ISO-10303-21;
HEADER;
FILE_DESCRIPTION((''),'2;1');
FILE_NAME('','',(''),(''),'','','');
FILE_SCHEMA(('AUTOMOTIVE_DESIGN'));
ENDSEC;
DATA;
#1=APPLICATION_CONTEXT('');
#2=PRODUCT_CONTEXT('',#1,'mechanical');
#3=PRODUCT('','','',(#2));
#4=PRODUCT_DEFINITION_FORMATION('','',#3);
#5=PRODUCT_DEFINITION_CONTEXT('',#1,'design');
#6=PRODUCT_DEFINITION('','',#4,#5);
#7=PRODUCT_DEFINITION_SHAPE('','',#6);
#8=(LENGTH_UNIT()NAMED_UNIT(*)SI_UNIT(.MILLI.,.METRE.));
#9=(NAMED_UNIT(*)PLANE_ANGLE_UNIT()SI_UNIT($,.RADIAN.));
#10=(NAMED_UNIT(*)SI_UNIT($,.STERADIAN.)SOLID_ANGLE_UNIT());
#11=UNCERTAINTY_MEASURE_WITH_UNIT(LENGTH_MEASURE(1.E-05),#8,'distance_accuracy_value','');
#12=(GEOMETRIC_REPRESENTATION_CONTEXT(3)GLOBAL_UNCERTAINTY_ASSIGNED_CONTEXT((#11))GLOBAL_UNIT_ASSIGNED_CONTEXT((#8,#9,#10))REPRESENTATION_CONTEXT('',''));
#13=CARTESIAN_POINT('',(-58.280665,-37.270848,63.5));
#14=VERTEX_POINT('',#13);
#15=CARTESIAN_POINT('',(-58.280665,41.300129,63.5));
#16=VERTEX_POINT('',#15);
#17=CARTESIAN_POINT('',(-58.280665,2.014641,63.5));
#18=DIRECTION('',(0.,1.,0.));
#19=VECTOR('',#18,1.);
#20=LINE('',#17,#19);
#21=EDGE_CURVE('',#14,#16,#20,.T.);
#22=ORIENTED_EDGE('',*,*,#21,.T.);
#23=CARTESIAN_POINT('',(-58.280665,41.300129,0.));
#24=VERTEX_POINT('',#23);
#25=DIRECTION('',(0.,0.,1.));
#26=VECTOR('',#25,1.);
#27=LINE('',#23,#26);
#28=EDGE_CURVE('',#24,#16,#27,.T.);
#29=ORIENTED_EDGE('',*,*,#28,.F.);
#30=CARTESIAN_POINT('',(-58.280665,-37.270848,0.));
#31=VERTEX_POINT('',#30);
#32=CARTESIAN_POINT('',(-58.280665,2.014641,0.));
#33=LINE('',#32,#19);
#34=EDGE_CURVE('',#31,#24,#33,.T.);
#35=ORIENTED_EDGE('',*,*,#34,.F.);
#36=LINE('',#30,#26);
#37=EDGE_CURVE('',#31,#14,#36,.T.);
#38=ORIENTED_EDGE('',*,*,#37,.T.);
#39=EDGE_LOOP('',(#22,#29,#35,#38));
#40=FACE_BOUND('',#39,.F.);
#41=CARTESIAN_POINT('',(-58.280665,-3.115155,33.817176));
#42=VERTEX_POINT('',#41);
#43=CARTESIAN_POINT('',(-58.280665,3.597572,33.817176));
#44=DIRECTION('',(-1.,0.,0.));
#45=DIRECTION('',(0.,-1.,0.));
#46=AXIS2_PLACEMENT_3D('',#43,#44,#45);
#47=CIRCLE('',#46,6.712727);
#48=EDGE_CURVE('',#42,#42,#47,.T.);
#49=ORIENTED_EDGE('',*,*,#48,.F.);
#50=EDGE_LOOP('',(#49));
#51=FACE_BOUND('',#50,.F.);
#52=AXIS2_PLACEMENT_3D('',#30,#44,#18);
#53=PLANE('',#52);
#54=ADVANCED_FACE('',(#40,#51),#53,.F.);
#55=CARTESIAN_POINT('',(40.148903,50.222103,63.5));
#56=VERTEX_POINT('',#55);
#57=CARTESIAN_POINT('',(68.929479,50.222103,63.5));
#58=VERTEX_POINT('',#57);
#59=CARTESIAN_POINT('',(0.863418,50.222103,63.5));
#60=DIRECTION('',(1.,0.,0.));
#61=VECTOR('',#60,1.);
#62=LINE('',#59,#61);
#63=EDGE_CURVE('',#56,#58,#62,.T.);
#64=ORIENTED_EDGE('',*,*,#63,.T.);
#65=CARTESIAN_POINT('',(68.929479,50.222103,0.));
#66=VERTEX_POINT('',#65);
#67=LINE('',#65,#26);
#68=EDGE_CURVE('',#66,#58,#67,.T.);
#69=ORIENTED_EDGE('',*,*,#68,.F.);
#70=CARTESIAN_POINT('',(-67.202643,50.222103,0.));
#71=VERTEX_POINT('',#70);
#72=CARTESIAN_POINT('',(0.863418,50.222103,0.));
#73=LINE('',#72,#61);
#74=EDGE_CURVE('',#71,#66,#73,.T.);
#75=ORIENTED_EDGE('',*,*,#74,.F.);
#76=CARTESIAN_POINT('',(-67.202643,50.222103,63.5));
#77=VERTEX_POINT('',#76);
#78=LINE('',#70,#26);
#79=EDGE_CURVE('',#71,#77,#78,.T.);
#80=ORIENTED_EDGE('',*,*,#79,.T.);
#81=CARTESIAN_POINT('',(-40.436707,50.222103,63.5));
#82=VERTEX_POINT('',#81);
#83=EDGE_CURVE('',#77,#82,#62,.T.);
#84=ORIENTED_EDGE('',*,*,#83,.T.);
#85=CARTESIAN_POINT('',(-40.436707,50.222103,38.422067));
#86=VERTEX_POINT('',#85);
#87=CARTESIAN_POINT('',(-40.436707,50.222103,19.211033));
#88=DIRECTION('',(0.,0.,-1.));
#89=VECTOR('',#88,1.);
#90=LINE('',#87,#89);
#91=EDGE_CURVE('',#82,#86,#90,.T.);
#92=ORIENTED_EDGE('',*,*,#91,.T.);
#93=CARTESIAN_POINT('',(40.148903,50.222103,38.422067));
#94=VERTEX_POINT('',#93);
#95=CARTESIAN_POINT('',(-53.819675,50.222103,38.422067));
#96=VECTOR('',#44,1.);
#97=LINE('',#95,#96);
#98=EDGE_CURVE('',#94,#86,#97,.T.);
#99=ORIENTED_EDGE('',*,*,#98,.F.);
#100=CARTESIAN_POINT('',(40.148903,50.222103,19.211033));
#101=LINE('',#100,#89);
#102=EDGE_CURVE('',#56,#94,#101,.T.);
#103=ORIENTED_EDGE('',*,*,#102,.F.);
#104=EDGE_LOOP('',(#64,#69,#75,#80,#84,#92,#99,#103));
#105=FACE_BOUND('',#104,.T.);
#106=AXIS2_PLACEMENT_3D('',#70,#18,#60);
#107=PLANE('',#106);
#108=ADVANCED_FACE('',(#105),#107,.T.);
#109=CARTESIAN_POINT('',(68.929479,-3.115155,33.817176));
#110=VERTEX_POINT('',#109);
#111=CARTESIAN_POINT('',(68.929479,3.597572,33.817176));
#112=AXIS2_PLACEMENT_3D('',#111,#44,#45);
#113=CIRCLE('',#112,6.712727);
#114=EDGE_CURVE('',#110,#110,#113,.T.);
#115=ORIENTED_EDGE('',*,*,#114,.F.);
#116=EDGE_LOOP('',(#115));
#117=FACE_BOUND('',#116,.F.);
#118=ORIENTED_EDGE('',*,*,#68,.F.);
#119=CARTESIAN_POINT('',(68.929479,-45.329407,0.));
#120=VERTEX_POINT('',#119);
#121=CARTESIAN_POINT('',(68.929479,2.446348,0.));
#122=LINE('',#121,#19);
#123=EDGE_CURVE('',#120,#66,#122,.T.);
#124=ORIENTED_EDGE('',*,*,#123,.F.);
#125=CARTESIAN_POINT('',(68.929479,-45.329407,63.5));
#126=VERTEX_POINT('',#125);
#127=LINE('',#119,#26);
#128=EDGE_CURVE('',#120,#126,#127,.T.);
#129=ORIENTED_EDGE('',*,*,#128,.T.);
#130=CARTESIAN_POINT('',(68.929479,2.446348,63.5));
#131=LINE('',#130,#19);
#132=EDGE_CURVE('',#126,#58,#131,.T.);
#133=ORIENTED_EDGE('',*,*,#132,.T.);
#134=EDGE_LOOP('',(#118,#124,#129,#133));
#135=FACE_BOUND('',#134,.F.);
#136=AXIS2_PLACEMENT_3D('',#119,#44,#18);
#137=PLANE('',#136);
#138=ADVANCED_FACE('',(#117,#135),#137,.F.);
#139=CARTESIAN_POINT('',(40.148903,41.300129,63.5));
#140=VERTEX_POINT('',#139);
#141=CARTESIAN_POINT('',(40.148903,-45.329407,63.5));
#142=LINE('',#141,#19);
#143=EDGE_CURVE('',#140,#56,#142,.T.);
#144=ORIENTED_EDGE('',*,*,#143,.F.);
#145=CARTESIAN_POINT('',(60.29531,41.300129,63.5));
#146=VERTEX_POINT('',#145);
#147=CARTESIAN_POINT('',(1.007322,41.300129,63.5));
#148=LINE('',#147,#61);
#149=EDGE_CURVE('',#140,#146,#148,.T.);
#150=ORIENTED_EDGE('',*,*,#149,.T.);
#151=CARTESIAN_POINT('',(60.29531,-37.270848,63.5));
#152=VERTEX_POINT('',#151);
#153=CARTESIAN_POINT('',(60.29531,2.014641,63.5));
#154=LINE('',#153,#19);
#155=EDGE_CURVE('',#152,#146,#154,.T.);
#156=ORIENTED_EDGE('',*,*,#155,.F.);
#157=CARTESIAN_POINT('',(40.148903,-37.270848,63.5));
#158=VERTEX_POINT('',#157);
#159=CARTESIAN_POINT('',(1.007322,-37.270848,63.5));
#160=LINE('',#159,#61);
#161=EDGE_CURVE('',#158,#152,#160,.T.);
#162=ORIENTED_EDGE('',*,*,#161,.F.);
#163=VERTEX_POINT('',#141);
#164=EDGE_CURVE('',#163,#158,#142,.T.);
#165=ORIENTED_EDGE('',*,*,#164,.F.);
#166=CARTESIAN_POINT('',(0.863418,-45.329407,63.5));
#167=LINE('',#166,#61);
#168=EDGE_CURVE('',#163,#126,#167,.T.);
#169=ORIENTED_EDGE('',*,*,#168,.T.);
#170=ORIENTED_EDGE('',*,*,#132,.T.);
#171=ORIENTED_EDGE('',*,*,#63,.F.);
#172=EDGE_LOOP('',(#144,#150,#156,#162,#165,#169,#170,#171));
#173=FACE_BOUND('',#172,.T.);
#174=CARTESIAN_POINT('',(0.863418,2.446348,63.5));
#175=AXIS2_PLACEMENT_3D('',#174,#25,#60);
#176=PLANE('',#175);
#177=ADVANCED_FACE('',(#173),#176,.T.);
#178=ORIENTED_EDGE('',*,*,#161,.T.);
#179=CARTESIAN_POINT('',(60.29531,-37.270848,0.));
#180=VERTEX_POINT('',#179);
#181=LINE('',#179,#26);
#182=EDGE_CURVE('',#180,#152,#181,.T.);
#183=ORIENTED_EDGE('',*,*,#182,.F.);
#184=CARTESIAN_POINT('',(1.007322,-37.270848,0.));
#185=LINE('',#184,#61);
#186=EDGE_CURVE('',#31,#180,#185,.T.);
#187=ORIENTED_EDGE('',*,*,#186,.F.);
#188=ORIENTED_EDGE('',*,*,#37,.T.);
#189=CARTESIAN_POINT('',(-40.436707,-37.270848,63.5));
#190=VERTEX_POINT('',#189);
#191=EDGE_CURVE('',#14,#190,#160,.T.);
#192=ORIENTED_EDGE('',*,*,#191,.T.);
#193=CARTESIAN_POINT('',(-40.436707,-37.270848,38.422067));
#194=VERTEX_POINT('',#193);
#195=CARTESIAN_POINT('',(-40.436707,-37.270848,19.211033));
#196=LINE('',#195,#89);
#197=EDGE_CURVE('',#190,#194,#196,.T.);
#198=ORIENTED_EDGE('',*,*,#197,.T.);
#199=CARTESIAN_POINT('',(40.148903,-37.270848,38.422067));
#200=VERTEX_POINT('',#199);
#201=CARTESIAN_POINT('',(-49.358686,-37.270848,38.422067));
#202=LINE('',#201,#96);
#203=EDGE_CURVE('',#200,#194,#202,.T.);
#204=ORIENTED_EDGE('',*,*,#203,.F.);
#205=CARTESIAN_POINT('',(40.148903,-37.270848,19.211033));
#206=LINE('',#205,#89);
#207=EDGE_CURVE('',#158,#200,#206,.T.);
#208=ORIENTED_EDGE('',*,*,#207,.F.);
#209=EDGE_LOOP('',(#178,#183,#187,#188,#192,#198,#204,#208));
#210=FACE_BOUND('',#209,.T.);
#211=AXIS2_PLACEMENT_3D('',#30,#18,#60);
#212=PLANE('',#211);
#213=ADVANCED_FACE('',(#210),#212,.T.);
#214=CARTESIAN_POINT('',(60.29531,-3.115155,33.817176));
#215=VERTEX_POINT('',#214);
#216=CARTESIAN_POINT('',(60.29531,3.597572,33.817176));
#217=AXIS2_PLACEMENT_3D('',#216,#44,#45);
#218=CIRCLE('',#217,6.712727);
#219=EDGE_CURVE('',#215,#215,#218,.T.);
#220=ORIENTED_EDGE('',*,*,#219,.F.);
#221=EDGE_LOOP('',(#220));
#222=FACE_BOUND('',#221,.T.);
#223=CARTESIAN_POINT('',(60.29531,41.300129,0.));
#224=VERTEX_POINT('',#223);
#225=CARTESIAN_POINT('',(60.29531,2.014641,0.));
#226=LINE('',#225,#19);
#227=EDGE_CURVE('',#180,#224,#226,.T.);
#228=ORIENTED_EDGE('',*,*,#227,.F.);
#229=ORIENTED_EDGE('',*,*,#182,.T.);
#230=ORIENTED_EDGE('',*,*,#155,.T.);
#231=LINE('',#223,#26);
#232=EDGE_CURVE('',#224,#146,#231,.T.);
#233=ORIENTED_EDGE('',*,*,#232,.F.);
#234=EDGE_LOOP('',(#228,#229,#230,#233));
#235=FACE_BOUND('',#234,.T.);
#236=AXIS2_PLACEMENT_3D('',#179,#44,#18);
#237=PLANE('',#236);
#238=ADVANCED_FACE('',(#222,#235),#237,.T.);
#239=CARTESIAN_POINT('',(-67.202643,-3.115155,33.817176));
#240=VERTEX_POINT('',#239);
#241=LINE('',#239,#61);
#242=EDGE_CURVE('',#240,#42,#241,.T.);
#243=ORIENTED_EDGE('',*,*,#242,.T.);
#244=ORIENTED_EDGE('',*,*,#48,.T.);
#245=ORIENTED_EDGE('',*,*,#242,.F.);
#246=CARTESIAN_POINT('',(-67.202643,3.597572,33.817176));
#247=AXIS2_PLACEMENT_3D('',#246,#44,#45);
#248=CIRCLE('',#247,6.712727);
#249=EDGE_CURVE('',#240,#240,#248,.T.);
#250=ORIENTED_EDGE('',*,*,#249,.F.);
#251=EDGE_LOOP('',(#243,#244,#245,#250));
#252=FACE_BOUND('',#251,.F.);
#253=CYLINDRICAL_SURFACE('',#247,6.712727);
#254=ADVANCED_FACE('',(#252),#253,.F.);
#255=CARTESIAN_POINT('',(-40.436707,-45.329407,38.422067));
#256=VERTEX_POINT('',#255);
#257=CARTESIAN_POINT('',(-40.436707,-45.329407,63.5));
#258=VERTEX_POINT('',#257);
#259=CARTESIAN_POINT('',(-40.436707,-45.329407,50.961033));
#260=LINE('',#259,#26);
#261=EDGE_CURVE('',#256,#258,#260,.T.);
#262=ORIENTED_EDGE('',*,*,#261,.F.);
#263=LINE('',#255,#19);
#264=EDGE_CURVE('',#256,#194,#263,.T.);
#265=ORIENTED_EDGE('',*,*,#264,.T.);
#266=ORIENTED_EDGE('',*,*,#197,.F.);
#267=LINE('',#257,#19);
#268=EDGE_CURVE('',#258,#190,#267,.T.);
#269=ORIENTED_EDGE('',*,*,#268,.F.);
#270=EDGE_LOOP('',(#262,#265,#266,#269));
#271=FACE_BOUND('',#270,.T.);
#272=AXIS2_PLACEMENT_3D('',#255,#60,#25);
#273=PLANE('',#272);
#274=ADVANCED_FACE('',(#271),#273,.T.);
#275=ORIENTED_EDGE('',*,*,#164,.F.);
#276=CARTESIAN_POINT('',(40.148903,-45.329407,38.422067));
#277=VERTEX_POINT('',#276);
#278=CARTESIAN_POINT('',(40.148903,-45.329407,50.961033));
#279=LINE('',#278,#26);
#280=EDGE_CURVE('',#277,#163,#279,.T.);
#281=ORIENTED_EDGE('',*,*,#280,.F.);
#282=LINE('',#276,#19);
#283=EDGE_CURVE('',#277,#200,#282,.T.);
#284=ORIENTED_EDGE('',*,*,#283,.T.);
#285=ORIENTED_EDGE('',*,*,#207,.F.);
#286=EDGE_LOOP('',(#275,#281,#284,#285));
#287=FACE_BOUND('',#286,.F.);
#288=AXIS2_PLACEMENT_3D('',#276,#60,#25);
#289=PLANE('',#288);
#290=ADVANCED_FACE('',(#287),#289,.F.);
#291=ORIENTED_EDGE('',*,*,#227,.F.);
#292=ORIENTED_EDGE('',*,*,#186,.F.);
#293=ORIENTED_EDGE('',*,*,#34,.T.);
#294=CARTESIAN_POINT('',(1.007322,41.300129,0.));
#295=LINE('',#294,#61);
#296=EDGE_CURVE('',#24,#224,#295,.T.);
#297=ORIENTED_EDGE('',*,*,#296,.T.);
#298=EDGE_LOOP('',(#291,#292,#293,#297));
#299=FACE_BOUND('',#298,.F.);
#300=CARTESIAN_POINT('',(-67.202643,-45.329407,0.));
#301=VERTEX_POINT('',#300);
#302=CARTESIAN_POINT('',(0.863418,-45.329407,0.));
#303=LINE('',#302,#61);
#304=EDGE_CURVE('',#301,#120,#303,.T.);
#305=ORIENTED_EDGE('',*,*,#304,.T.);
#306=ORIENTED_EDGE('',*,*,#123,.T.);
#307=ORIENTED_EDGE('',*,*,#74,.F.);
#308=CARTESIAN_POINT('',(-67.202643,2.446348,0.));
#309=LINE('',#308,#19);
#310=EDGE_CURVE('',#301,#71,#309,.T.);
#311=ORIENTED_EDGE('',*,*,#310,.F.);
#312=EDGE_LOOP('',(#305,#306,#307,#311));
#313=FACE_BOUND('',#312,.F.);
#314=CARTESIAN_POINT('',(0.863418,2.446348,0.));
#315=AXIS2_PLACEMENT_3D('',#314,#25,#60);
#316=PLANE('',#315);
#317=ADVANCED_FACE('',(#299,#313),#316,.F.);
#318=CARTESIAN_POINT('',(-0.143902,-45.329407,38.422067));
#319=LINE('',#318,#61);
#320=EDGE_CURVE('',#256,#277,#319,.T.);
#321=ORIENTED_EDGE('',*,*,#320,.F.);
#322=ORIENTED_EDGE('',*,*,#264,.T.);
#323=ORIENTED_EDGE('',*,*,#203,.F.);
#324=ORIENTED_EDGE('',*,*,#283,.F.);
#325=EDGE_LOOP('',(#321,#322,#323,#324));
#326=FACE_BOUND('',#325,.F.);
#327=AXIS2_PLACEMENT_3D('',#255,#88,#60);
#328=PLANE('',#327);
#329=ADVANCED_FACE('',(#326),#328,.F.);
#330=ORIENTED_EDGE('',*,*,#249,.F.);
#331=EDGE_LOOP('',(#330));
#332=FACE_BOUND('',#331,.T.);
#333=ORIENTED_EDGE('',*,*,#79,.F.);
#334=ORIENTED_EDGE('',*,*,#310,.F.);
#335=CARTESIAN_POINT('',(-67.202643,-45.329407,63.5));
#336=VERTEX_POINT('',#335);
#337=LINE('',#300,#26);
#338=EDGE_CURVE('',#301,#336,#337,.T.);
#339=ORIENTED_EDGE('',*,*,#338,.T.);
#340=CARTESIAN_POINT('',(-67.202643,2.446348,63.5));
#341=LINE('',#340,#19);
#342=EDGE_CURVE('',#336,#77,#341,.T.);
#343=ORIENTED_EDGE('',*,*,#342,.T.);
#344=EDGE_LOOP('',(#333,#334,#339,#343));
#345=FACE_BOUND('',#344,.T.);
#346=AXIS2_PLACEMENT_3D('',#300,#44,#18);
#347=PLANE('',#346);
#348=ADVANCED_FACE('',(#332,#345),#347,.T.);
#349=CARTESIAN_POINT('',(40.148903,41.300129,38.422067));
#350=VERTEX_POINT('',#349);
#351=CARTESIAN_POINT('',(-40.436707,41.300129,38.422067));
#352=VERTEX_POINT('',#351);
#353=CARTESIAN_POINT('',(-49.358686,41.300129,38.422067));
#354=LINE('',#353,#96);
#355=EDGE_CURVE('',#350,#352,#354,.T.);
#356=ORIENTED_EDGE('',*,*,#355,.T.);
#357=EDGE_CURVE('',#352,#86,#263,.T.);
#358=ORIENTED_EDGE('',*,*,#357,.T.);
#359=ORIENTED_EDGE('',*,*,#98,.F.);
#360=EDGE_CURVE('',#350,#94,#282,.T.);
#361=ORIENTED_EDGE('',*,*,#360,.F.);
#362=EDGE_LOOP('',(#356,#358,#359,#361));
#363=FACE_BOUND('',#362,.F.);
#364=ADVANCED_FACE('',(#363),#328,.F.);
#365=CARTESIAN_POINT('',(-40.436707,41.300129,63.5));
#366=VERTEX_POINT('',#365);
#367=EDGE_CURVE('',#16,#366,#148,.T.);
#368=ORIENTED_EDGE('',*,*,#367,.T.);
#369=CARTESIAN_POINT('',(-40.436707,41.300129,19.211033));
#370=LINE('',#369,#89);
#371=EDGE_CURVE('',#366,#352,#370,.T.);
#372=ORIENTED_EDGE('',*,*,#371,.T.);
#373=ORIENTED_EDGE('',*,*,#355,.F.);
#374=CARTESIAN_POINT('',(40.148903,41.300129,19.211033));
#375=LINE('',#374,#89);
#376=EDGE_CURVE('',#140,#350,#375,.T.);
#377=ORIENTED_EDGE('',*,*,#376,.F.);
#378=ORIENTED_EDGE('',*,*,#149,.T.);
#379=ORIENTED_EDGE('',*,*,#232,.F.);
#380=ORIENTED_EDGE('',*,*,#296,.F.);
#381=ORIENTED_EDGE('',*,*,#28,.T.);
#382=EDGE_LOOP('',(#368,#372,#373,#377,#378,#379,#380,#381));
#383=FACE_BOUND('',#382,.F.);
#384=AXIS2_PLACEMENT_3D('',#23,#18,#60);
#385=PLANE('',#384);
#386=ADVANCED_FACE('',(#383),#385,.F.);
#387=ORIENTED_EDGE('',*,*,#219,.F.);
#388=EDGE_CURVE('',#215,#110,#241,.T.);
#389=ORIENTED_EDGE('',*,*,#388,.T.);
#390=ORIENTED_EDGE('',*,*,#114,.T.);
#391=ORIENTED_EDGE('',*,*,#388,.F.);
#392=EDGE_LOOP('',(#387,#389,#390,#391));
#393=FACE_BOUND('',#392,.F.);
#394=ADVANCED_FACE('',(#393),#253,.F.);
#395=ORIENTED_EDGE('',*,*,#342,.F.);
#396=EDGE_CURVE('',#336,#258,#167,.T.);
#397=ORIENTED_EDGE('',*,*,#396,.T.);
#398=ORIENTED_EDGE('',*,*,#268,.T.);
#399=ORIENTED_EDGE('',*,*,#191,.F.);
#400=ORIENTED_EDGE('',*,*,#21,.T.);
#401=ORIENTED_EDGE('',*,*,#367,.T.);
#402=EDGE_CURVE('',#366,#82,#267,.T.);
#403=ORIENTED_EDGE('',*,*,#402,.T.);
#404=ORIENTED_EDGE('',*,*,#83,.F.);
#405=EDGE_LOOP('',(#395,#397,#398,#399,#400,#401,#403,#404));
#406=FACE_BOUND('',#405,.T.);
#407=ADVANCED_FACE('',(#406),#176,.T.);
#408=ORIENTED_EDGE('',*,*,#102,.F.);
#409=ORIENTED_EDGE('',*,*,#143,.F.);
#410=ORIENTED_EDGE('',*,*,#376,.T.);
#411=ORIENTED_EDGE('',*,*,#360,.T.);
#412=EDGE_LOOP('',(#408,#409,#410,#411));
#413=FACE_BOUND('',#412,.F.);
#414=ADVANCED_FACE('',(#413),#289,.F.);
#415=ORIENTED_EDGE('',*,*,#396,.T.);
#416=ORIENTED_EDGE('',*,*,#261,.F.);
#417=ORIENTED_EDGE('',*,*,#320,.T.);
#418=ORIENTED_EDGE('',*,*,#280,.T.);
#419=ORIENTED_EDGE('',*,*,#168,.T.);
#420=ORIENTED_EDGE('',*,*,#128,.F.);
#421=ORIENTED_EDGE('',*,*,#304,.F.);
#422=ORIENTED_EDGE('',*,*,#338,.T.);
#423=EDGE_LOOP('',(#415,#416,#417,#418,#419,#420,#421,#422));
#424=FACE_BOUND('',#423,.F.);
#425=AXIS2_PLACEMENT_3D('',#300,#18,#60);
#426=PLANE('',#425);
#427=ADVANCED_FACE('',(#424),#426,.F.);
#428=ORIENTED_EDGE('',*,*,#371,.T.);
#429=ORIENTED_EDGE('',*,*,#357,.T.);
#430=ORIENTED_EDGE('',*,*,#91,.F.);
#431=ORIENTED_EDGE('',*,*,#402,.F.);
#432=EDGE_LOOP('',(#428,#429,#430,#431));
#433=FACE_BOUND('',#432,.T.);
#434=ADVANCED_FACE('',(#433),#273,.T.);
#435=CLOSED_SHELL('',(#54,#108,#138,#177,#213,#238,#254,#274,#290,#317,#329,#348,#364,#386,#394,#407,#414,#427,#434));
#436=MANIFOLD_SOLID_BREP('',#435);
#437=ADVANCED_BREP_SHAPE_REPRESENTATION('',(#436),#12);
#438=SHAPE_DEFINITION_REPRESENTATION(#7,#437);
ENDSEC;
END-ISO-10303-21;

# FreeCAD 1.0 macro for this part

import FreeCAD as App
import Part
import Sketcher
from FreeCAD import Vector
Q = App.Units.Quantity

doc = App.newDocument("Part")
body = doc.addObject("PartDesign::Body", "Body")

# Sketch on XY plane
sketch1 = doc.addObject("Sketcher::SketchObject", "Sketch")
body.addObject(sketch1)
sketch1.AttachmentSupport = (doc.XY_Plane, [""])
sketch1.MapMode = "FlatFace"
sketch1.addGeometry([
    Part.LineSegment(Vector(-67.202643, 50.222103, 0), Vector(-67.202643, -45.329407, 0)),  # 0
    Part.LineSegment(Vector(-67.202643, -45.329407, 0), Vector(68.929479, -45.329407, 0)),  # 1
    Part.LineSegment(Vector(68.929479, -45.329407, 0), Vector(68.929479, 50.222103, 0)),  # 2
    Part.LineSegment(Vector(68.929479, 50.222103, 0), Vector(-67.202643, 50.222103, 0)),  # 3
    Part.LineSegment(Vector(60.29531, -37.270848, 0), Vector(-58.280665, -37.270848, 0)),  # 4
    Part.LineSegment(Vector(-58.280665, -37.270848, 0), Vector(-58.280665, 41.300129, 0)),  # 5
    Part.LineSegment(Vector(-58.280665, 41.300129, 0), Vector(60.29531, 41.300129, 0)),  # 6
    Part.LineSegment(Vector(60.29531, 41.300129, 0), Vector(60.29531, -37.270848, 0)),  # 7
], False)
sketch1.addConstraint([
    Sketcher.Constraint("Coincident", 0, 2, 1, 1),
    Sketcher.Constraint("Coincident", 1, 2, 2, 1),
    Sketcher.Constraint("Coincident", 2, 2, 3, 1),
    Sketcher.Constraint("Coincident", 3, 2, 0, 1),
    Sketcher.Constraint("Coincident", 4, 2, 5, 1),
    Sketcher.Constraint("Coincident", 5, 2, 6, 1),
    Sketcher.Constraint("Coincident", 6, 2, 7, 1),
    Sketcher.Constraint("Coincident", 7, 2, 4, 1),
    Sketcher.Constraint("Vertical", 0),
    Sketcher.Constraint("Horizontal", 1),
    Sketcher.Constraint("Vertical", 2),
    Sketcher.Constraint("Horizontal", 3),
    Sketcher.Constraint("Horizontal", 4),
    Sketcher.Constraint("Vertical", 5),
    Sketcher.Constraint("Horizontal", 6),
    Sketcher.Constraint("Vertical", 7),
    Sketcher.Constraint("DistanceX", 1, 1, 1, 2, 136.132121),
    Sketcher.Constraint("DistanceY", 0, 2, 0, 1, 95.551509),
    Sketcher.Constraint("DistanceX", 4, 2, 4, 1, 118.575975),
    Sketcher.Constraint("DistanceY", 5, 1, 5, 2, 78.570977),
    Sketcher.Constraint("DistanceX", -1, 1, 1, 2, 68.929479),
    Sketcher.Constraint("DistanceY", -1, 1, 5, 2, 41.300129),
    Sketcher.Constraint("DistanceX", -1, 1, 6, 2, 60.29531),
    Sketcher.Constraint("DistanceY", 0, 2, 4, 2, 8.058559),
])
pad1 = doc.addObject("PartDesign::Pad", "Pad")
body.addObject(pad1)
pad1.Profile = sketch1
pad1.Length = Q("2.5 in")

# Sketch on XZ plane
sketch2 = doc.addObject("Sketcher::SketchObject", "Sketch001")
body.addObject(sketch2)
sketch2.AttachmentSupport = (doc.XZ_Plane, [""])
sketch2.MapMode = "FlatFace"
sketch2.AttachmentOffset = App.Placement(Vector(0, 0, 45.329407), App.Rotation())
sketch2.addGeometry([
    Part.LineSegment(Vector(-40.436707, 63.5, 0), Vector(-40.436707, 38.422067, 0)),
    Part.LineSegment(Vector(-40.436707, 38.422067, 0), Vector(40.148903, 38.422067, 0)),
    Part.LineSegment(Vector(40.148903, 38.422067, 0), Vector(40.148903, 63.5, 0)),
    Part.LineSegment(Vector(40.148903, 63.5, 0), Vector(-40.436707, 63.5, 0)),
], False)
sketch2.addConstraint([
    Sketcher.Constraint("Coincident", 0, 2, 1, 1),
    Sketcher.Constraint("Coincident", 1, 2, 2, 1),
    Sketcher.Constraint("Coincident", 2, 2, 3, 1),
    Sketcher.Constraint("Coincident", 3, 2, 0, 1),
    Sketcher.Constraint("Vertical", 0),
    Sketcher.Constraint("Horizontal", 1),
    Sketcher.Constraint("Vertical", 2),
    Sketcher.Constraint("Horizontal", 3),
    Sketcher.Constraint("DistanceY", -1, 1, 2, 2, Q("2.5 in")),
    Sketcher.Constraint("DistanceX", 1, 1, 1, 2, 80.58561),
    Sketcher.Constraint("DistanceY", 0, 2, 0, 1, 25.077933),
    Sketcher.Constraint("DistanceX", 0, 2, -1, 1, 40.436707),
])
pocket1 = doc.addObject("PartDesign::Pocket", "Pocket")
body.addObject(pocket1)
pocket1.Profile = sketch2
pocket1.Length = Q("5.59 in")

# Sketch on YZ plane
sketch3 = doc.addObject("Sketcher::SketchObject", "Sketch002")
body.addObject(sketch3)
sketch3.AttachmentSupport = (doc.YZ_Plane, [""])
sketch3.MapMode = "FlatFace"
sketch3.AttachmentOffset = App.Placement(Vector(0, 0, -67.202643), App.Rotation())
sketch3.addGeometry(Part.Circle(Vector(3.597572, 33.817176, 0), Vector(0, 0, 1), 6.712727), False)
sketch3.addConstraint([
    Sketcher.Constraint("Diameter", 0, 13.425454),
    Sketcher.Constraint("DistanceX", -1, 1, 0, 3, 3.597572),
    Sketcher.Constraint("DistanceY", -1, 1, 0, 3, 33.817176),
])
pocket2 = doc.addObject("PartDesign::Pocket", "Pocket001")
body.addObject(pocket2)
pocket2.Profile = sketch3
pocket2.Length = Q("7.35 in")
pocket2.Reversed = True

doc.recompute()
